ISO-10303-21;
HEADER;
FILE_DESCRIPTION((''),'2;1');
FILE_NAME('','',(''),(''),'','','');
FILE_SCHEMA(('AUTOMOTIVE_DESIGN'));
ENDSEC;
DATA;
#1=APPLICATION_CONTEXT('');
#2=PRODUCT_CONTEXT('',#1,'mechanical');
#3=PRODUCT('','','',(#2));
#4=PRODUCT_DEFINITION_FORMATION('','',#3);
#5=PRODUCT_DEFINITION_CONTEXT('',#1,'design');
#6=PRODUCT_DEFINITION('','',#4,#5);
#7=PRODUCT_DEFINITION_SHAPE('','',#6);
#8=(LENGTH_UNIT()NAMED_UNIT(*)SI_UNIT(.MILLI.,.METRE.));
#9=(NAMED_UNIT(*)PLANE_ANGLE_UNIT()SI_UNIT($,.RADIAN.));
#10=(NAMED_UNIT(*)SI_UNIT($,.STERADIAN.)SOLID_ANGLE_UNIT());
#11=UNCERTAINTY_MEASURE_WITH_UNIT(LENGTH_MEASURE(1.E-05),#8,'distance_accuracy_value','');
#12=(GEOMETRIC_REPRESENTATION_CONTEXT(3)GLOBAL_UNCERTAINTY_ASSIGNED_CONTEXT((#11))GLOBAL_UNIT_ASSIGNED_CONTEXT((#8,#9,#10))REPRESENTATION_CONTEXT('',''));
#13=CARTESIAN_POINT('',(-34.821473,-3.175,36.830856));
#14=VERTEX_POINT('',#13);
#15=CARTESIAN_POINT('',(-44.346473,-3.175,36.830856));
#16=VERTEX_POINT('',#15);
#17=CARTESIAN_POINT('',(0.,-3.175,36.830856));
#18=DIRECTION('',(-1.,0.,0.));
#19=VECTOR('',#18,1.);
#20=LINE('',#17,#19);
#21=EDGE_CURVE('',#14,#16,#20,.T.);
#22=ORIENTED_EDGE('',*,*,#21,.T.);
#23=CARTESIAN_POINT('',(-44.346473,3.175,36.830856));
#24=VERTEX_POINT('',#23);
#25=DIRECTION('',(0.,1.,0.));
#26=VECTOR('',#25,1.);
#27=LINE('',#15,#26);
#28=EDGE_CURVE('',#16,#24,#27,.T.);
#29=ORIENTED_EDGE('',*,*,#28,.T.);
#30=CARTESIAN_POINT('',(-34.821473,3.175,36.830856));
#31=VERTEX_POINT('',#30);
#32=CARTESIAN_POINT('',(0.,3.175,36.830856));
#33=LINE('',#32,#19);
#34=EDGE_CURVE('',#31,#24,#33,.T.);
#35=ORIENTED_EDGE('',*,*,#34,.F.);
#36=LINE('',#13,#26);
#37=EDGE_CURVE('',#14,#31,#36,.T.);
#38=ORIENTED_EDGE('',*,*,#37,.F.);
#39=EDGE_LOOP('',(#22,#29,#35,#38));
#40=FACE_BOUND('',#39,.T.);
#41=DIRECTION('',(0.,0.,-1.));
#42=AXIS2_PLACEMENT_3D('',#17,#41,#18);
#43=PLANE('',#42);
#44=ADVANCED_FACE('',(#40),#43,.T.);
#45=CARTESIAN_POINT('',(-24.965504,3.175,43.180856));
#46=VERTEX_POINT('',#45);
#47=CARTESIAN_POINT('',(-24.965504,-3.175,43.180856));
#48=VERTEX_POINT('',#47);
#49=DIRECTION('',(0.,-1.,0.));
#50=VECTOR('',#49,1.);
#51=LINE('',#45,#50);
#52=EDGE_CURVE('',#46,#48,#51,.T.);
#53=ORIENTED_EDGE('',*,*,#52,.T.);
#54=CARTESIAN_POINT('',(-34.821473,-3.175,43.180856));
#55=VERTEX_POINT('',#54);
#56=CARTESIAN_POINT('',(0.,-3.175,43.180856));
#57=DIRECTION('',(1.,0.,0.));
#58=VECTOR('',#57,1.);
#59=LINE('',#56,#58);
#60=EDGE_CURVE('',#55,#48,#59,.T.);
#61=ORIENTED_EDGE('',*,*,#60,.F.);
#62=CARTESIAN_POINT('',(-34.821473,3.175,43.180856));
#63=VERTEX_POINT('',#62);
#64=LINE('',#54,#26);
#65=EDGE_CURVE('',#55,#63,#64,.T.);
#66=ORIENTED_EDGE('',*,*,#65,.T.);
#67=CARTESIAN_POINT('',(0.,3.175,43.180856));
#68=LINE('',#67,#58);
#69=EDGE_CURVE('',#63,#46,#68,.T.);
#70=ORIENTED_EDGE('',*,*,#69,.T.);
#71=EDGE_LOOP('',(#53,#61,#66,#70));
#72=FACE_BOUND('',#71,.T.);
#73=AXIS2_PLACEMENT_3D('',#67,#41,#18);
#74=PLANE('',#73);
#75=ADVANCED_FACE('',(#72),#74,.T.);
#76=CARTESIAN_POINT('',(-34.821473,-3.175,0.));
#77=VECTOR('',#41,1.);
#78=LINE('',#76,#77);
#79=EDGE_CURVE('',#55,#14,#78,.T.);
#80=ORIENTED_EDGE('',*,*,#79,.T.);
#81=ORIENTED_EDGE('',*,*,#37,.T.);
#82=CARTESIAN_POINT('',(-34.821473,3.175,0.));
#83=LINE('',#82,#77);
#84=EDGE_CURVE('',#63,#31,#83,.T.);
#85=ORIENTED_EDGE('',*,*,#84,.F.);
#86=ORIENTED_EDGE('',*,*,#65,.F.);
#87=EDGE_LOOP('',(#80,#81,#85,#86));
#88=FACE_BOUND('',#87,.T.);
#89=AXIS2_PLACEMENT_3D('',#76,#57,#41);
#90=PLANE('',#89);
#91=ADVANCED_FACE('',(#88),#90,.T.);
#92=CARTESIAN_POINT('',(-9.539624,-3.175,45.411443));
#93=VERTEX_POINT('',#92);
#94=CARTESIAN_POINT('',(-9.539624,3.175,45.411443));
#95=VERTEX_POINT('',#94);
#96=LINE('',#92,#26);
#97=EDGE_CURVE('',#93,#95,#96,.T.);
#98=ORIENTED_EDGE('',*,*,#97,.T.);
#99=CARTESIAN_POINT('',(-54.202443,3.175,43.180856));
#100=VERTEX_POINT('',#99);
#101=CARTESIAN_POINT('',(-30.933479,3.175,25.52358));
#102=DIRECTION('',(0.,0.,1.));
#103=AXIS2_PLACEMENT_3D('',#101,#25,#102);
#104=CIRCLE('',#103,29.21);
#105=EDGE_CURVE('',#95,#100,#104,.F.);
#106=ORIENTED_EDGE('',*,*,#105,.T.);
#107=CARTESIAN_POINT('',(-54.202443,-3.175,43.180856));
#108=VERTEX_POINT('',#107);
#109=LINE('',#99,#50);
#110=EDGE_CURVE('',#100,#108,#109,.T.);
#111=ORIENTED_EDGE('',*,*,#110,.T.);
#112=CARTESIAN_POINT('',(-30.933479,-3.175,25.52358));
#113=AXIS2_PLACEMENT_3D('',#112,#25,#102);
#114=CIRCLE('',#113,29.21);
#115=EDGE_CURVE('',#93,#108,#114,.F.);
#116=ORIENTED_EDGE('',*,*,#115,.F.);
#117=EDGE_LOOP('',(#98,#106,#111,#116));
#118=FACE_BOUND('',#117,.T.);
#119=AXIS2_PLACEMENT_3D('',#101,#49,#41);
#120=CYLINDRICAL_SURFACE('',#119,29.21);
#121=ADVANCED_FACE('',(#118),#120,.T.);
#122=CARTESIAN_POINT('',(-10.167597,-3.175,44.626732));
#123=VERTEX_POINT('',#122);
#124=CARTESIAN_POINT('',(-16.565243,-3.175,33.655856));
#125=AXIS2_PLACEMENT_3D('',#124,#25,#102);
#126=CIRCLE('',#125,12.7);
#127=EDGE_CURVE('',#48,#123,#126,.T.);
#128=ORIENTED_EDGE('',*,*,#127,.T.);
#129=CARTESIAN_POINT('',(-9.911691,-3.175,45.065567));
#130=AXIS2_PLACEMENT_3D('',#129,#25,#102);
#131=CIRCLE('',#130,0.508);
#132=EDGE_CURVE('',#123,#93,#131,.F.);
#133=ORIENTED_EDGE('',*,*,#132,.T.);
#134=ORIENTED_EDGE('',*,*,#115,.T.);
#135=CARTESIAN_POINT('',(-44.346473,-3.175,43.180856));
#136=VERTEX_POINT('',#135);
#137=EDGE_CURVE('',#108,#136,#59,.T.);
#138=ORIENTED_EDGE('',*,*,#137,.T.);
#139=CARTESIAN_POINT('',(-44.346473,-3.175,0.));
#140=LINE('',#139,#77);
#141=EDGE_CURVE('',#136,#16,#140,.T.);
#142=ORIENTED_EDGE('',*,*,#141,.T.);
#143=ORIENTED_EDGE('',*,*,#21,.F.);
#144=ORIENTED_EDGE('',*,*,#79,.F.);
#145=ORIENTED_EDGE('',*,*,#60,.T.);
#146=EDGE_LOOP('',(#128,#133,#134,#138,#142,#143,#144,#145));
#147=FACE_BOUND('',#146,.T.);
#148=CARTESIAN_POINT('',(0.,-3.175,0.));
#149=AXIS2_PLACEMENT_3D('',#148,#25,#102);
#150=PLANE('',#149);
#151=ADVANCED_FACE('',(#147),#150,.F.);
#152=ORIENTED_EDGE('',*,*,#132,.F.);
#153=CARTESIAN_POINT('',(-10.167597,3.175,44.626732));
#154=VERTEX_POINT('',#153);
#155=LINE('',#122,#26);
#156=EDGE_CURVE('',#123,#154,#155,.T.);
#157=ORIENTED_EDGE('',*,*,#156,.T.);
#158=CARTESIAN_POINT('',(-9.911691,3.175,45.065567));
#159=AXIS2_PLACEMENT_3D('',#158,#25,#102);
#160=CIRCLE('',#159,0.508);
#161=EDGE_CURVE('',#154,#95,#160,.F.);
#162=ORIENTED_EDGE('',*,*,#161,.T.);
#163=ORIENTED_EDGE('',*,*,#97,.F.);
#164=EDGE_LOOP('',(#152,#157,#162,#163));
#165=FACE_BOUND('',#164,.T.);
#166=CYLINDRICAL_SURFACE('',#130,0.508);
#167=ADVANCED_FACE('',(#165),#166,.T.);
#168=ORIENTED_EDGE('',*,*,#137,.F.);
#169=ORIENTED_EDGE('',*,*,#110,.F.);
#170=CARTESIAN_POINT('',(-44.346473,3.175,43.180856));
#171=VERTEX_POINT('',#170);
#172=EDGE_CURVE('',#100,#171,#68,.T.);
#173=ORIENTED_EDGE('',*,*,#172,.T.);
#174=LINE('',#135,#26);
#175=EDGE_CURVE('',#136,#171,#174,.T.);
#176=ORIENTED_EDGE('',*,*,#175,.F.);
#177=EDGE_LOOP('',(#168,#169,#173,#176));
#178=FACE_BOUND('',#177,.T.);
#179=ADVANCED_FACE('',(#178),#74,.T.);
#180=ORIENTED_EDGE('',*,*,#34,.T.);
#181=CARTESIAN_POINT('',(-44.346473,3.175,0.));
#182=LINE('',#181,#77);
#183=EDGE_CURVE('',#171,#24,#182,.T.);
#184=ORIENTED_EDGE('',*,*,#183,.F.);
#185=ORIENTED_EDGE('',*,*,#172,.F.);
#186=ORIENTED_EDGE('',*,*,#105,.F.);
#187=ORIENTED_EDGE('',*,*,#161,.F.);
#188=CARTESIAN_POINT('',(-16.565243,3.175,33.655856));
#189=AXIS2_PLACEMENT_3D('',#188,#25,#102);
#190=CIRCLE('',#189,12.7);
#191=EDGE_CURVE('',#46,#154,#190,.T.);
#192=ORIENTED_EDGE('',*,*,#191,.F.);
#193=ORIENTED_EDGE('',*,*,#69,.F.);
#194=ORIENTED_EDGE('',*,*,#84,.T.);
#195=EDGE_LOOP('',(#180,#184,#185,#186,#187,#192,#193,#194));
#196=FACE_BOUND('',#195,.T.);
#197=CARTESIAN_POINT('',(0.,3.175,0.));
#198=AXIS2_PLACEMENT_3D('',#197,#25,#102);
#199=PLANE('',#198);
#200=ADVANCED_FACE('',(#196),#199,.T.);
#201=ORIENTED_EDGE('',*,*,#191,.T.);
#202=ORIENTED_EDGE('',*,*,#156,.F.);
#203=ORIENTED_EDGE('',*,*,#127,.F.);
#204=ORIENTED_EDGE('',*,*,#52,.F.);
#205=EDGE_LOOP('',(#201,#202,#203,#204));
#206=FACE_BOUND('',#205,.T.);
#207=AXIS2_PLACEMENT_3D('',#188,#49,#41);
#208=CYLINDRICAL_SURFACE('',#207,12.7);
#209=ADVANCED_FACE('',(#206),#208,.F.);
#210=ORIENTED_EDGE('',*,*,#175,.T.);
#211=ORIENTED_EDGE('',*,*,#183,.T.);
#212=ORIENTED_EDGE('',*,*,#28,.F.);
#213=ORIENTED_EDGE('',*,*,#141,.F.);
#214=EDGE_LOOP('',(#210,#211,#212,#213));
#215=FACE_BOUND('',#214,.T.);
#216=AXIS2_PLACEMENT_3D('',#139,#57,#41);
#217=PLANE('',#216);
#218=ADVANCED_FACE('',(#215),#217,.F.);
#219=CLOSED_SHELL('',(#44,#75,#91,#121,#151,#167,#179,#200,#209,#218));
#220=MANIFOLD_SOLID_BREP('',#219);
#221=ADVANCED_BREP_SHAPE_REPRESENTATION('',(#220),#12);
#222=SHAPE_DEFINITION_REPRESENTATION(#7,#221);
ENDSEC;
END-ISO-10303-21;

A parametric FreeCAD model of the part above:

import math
import FreeCAD as App
import Part
import Sketcher
from FreeCAD import Vector
Q = App.Units.Quantity


def add_polygon(sketch, points):
    """Adds a closed chain of lines whose ends are joined by coincident constraints."""
    first, n = sketch.GeometryCount, len(points)
    for a, b in zip(points, points[1:] + points[:1]):
        sketch.addGeometry(Part.LineSegment(App.Vector(*a, 0), App.Vector(*b, 0)), False)
    for i in range(n):
        sketch.addConstraint(Sketcher.Constraint("Coincident", first + i, 2, first + (i + 1) % n, 1))

doc = App.newDocument("Part")
body = doc.addObject("PartDesign::Body", "Body")

# Sketch on XZ plane
sketch1 = doc.addObject("Sketcher::SketchObject", "Sketch")
body.addObject(sketch1)
sketch1.AttachmentSupport = (doc.XZ_Plane, [""])
sketch1.MapMode = "FlatFace"
sketch1.addGeometry([
    Part.ArcOfCircle(Part.Circle(Vector(-31, 26, 0), Vector(0, 0, 1), 29), math.radians(30), math.radians(143)),
    Part.ArcOfCircle(Part.Circle(Vector(-17, 34, 0), Vector(0, 0, 1), 13), math.radians(30), math.radians(131)),
    Part.LineSegment(Vector(-25, 43, 0), Vector(-54, 43, 0)),
], False)
sketch1.addConstraint([
    Sketcher.Constraint("Tangent", 0, 1, 1, 1),
    Sketcher.Constraint("Coincident", 1, 2, 2, 1),
    Sketcher.Constraint("Coincident", 2, 2, 0, 2),
    Sketcher.Constraint("Horizontal", 2),
    Sketcher.Constraint("Radius", 1, Q("0.5 in")),
    Sketcher.Constraint("Radius", 0, Q("1.15 in")),
    Sketcher.Constraint("DistanceY", 1, 3, 1, 2, Q("0.375 in")),
    Sketcher.Constraint("DistanceX", 2, 2, 2, 1, Q("29.23694 mm")),
    Sketcher.Constraint("DistanceX", 0, 3, -1, 1, Q("30.933479 mm")),
    Sketcher.Constraint("DistanceY", -1, 1, 0, 3, Q("25.52358 mm")),
])
pad1 = doc.addObject("PartDesign::Pad", "Pad")
body.addObject(pad1)
pad1.Profile = sketch1
pad1.Length = Q("0.25 in")
pad1.Midplane = True

# Sketch on XZ plane
sketch2 = doc.addObject("Sketcher::SketchObject", "Sketch001")
body.addObject(sketch2)
sketch2.AttachmentSupport = (doc.XZ_Plane, [""])
sketch2.MapMode = "FlatFace"
sketch2.AttachmentOffset = App.Placement(Vector(0, 0, -0.125 * 25.4), App.Rotation())
add_polygon(sketch2, [(-44, 37), (-44, 43), (-35, 43), (-35, 37)])  # lines 0-3
sketch2.addConstraint([
    Sketcher.Constraint("Vertical", 0),
    Sketcher.Constraint("Horizontal", 1),
    Sketcher.Constraint("Vertical", 2),
    Sketcher.Constraint("Horizontal", 3),
    Sketcher.Constraint("DistanceY", 0, 1, 0, 2, Q("0.25 in")),
    Sketcher.Constraint("DistanceX", 1, 1, 1, 2, Q("0.375 in")),
    Sketcher.Constraint("DistanceX", 0, 2, -1, 1, Q("44.346473 mm")),
    Sketcher.Constraint("DistanceY", -1, 1, 0, 2, Q("43.180856 mm")),
])
pad2 = doc.addObject("PartDesign::Pad", "Pad001")
body.addObject(pad2)
pad2.Profile = sketch2
pad2.Length = Q("0.25 in")

# Sketch on XZ plane
sketch3 = doc.addObject("Sketcher::SketchObject", "Sketch002")
body.addObject(sketch3)
sketch3.AttachmentSupport = (doc.XZ_Plane, [""])
sketch3.MapMode = "FlatFace"
sketch3.AttachmentOffset = App.Placement(Vector(0, 0, -0.125 * 25.4), App.Rotation())
sketch3.addGeometry([
    Part.ArcOfCircle(Part.Circle(Vector(-16.6, 33.7, 0), Vector(0, 0, 1), 12.7), math.radians(30), math.radians(60)),
    Part.ArcOfCircle(Part.Circle(Vector(-9.9, 45.1, 0), Vector(0, 0, 1), 0.5), math.radians(-120), math.radians(43)),
    Part.ArcOfCircle(Part.Circle(Vector(-30.9, 25.5, 0), Vector(0, 0, 1), 29.2), math.radians(29.51), math.radians(42.91)),
], False)
sketch3.addConstraint([
    Sketcher.Constraint("Tangent", 0, 2, 1, 1),
    Sketcher.Constraint("Tangent", 1, 2, 2, 2),
    Sketcher.Constraint("Tangent", 2, 1, 0, 1),
    Sketcher.Constraint("Radius", 0, Q("0.5 in")),
    Sketcher.Constraint("Radius", 1, Q("0.02 in")),
    Sketcher.Constraint("Radius", 2, Q("1.15 in")),
    Sketcher.Constraint("DistanceX", 1, 3, -1, 1, Q("9.911691 mm")),
    Sketcher.Constraint("DistanceX", 2, 3, -1, 1, Q("30.933479 mm")),
    Sketcher.Constraint("DistanceY", -1, 1, 2, 3, Q("25.52358 mm")),
])
pocket1 = doc.addObject("PartDesign::Pocket", "Pocket")
body.addObject(pocket1)
pocket1.Profile = sketch3
pocket1.Type = "ThroughAll"
pocket1.Reversed = True

doc.recompute()
